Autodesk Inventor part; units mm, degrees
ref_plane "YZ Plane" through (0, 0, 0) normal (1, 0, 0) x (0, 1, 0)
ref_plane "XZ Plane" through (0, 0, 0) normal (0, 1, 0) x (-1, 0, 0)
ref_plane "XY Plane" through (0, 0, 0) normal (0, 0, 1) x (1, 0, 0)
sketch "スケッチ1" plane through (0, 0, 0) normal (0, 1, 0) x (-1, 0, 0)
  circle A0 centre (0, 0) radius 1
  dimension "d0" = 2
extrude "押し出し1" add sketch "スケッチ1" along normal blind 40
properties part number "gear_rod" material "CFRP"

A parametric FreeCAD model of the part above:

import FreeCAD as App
import Part
import Sketcher
from FreeCAD import Vector
Q = App.Units.Quantity

doc = App.newDocument("Part")
params = doc.addObject("Spreadsheet::Sheet", "Params")
for row, (alias, value) in enumerate([
    ("sketch1_diameter", "2 mm"),
    ("pad1_length", "40 mm"),
], start=1):
    params.set(f"A{row}", alias)
    params.set(f"B{row}", "=" + value)
    params.setAlias(f"B{row}", alias)

body = doc.addObject("PartDesign::Body", "Body")

sketch1 = body.newObject("Sketcher::SketchObject", "Sketch")
sketch1.AttachmentSupport = (doc.getObject("XZ_Plane"), [""])
sketch1.MapMode = "FlatFace"
sketch1.addGeometry(Part.Circle(Vector(0, 0, 0), Vector(0, 0, 1), 1), False)
sketch1.addConstraint([
    Sketcher.Constraint("Coincident", 0, 3, -1, 1),
    Sketcher.Constraint("Diameter", 0, Q("2 mm")),
])
sketch1.setExpression("Constraints[1]", "Params.sketch1_diameter")
pad1 = body.newObject("PartDesign::Pad", "Pad")
pad1.Profile = sketch1
pad1.setExpression("Length", "Params.pad1_length")
pad1.Reversed = True

doc.recompute()
